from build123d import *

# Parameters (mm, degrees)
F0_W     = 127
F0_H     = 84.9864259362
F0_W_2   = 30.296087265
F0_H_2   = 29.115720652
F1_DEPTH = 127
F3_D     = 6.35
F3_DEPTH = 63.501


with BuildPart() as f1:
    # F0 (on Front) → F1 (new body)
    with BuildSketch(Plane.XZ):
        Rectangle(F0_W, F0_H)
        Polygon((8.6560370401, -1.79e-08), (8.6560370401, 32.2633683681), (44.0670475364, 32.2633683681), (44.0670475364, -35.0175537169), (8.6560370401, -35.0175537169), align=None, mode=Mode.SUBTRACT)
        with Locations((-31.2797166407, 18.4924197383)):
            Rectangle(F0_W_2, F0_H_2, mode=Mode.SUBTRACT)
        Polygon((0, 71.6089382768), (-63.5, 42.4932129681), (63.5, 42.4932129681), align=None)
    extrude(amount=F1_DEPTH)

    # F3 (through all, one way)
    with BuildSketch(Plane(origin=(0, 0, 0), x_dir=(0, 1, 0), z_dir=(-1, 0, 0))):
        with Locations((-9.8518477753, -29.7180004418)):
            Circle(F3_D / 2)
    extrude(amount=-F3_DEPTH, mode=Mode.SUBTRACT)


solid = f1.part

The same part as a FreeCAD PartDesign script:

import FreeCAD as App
import Part
import Sketcher
Q = App.Units.Quantity


def add_polygon(sketch, points):
    """Adds a closed chain of lines whose ends are joined by coincident constraints."""
    first, n = sketch.GeometryCount, len(points)
    for a, b in zip(points, points[1:] + points[:1]):
        sketch.addGeometry(Part.LineSegment(App.Vector(*a, 0), App.Vector(*b, 0)), False)
    for i in range(n):
        sketch.addConstraint(Sketcher.Constraint("Coincident", first + i, 2, first + (i + 1) % n, 1))

doc = App.newDocument("Part")
body = doc.addObject("PartDesign::Body", "Body")

# Sketch on XZ plane
sketch1 = body.newObject("Sketcher::SketchObject", "Sketch")
sketch1.AttachmentSupport = (doc.getObject("XZ_Plane"), [""])
sketch1.MapMode = "FlatFace"
add_polygon(sketch1, [(-63.5, 42.493213), (-63.5, -42.493213), (63.5, -42.493213), (63.5, 42.493213), (0, 71.608938)])  # lines 0-4
add_polygon(sketch1, [(8.656037, -35.017554), (8.656037, 32.263368), (44.067048, 32.263368), (44.067048, -35.017554)])  # lines 5-8
add_polygon(sketch1, [(-16.131673, 3.934559), (-46.42776, 3.934559), (-46.42776, 33.05028), (-16.131673, 33.05028)])  # lines 9-12
sketch1.addConstraint(Sketcher.Constraint("Vertical", 0))
sketch1.addConstraint(Sketcher.Constraint("Horizontal", 1))
sketch1.addConstraint(Sketcher.Constraint("Vertical", 2))
sketch1.addConstraint(Sketcher.Constraint("Vertical", 5))
sketch1.addConstraint(Sketcher.Constraint("Horizontal", 6))
sketch1.addConstraint(Sketcher.Constraint("Vertical", 7))
sketch1.addConstraint(Sketcher.Constraint("Horizontal", 8))
sketch1.addConstraint(Sketcher.Constraint("Horizontal", 9))
sketch1.addConstraint(Sketcher.Constraint("Vertical", 10))
sketch1.addConstraint(Sketcher.Constraint("Horizontal", 11))
sketch1.addConstraint(Sketcher.Constraint("Vertical", 12))
sketch1.addConstraint(Sketcher.Constraint("Symmetric", 0, 2, 2, 2, -1, 1))
sketch1.addConstraint(Sketcher.Constraint("PointOnObject", 3, 2, -2))
sketch1.addConstraint(Sketcher.Constraint("Horizontal", 2, 2, 4, 2))
sketch1.addConstraint(Sketcher.Constraint("DistanceX", 1, 1, 1, 2, Q("5 in")))
sketch1.addConstraint(Sketcher.Constraint("DistanceX", 6, 1, 6, 2, 35.41101))
sketch1.addConstraint(Sketcher.Constraint("DistanceY", 10, 1, 10, 2, 29.115721))
sketch1.addConstraint(Sketcher.Constraint("Distance", 3, 69.856821))
sketch1.addConstraint(Sketcher.Constraint("DistanceX", 9, 2, 9, 1, 30.296087))
sketch1.addConstraint(Sketcher.Constraint("DistanceY", 0, 2, 0, 1, 84.986426))
sketch1.addConstraint(Sketcher.Constraint("DistanceY", 5, 1, 5, 2, 67.280922))
sketch1.addConstraint(Sketcher.Constraint("DistanceY", -1, 1, 5, 2, 32.263368))
sketch1.addConstraint(Sketcher.Constraint("DistanceX", 9, 2, -1, 1, 46.42776))
sketch1.addConstraint(Sketcher.Constraint("DistanceY", -1, 1, 9, 2, 3.934559))
sketch1.addConstraint(Sketcher.Constraint("DistanceX", 11, 2, 5, 2, 24.78771))
pad1 = body.newObject("PartDesign::Pad", "Pad")
pad1.Profile = sketch1
pad1.Length = Q("5 in")

# Sketch on YZ plane
sketch2 = body.newObject("Sketcher::SketchObject", "Sketch001")
sketch2.AttachmentSupport = (doc.getObject("YZ_Plane"), [""])
sketch2.MapMode = "FlatFace"
sketch2.addGeometry(Part.Circle(App.Vector(-9.851848, 29.718, 0), App.Vector(0, 0, 1), 3.175), False)
sketch2.addConstraint(Sketcher.Constraint("Diameter", 0, Q("0.25 in")))
sketch2.addConstraint(Sketcher.Constraint("DistanceY", -1, 1, 0, 3, Q("1.17 in")))
sketch2.addConstraint(Sketcher.Constraint("DistanceX", 0, 3, -1, 1, 9.851848))
pocket1 = body.newObject("PartDesign::Pocket", "Pocket")
pocket1.Profile = sketch2
pocket1.Type = "ThroughAll"
pocket1.Reversed = True

doc.recompute()
